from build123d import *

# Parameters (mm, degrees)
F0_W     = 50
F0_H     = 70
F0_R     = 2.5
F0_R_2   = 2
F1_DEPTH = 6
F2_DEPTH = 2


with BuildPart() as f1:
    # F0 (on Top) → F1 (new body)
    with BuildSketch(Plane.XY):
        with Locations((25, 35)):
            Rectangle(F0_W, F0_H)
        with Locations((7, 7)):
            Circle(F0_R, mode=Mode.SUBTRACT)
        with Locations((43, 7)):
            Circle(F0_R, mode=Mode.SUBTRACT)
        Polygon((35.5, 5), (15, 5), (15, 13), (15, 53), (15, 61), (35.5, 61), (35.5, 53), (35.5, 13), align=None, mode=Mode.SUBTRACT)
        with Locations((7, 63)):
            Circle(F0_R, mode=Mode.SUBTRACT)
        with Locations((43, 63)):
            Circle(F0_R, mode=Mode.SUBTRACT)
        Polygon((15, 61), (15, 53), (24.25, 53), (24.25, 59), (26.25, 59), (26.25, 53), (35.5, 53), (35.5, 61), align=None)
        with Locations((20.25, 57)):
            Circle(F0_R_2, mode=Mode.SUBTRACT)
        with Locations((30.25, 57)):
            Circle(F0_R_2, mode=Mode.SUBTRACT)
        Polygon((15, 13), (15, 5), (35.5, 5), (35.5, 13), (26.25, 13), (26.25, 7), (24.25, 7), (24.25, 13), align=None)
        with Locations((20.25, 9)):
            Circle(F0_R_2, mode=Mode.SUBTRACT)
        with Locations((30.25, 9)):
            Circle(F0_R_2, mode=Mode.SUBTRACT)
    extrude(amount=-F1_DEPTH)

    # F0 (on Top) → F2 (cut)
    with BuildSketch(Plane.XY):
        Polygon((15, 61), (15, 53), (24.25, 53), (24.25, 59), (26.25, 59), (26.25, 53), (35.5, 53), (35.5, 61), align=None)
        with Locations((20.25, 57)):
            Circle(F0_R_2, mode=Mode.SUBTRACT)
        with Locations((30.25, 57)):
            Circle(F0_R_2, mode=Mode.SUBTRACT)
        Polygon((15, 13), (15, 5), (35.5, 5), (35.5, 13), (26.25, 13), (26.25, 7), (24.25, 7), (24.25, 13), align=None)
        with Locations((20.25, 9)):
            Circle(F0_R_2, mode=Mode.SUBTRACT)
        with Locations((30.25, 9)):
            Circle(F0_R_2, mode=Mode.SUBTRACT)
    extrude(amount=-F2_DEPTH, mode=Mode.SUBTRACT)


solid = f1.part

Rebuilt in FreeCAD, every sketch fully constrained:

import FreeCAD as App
import Part
import Sketcher
Q = App.Units.Quantity

doc = App.newDocument("Part")
body = doc.addObject("PartDesign::Body", "Body")

# Sketch on XY plane
sketch1 = body.newObject("Sketcher::SketchObject", "Sketch")
sketch1.AttachmentSupport = (doc.getObject("XY_Plane"), [""])
sketch1.MapMode = "FlatFace"
sketch1.addGeometry([
    Part.LineSegment(App.Vector(0, 70, 0), App.Vector(0, 0, 0)),  # 0
    Part.LineSegment(App.Vector(0, 0, 0), App.Vector(50, 0, 0)),  # 1
    Part.LineSegment(App.Vector(50, 0, 0), App.Vector(50, 70, 0)),  # 2
    Part.LineSegment(App.Vector(50, 70, 0), App.Vector(0, 70, 0)),  # 3
    Part.Circle(App.Vector(7, 7, 0), App.Vector(0, 0, 1), 2.5),  # 4
    Part.Circle(App.Vector(20.25, 9, 0), App.Vector(0, 0, 1), 2),  # 5
    Part.Circle(App.Vector(30.25, 9, 0), App.Vector(0, 0, 1), 2),  # 6
    Part.Circle(App.Vector(43, 7, 0), App.Vector(0, 0, 1), 2.5),  # 7
    Part.LineSegment(App.Vector(35.5, 53, 0), App.Vector(35.5, 13, 0)),  # 8
    Part.LineSegment(App.Vector(35.5, 13, 0), App.Vector(26.25, 13, 0)),  # 9
    Part.LineSegment(App.Vector(26.25, 13, 0), App.Vector(26.25, 7, 0)),  # 10
    Part.LineSegment(App.Vector(26.25, 7, 0), App.Vector(24.25, 7, 0)),  # 11
    Part.LineSegment(App.Vector(24.25, 7, 0), App.Vector(24.25, 13, 0)),  # 12
    Part.LineSegment(App.Vector(24.25, 13, 0), App.Vector(15, 13, 0)),  # 13
    Part.LineSegment(App.Vector(15, 13, 0), App.Vector(15, 53, 0)),  # 14
    Part.LineSegment(App.Vector(15, 53, 0), App.Vector(24.25, 53, 0)),  # 15
    Part.LineSegment(App.Vector(24.25, 53, 0), App.Vector(24.25, 59, 0)),  # 16
    Part.LineSegment(App.Vector(24.25, 59, 0), App.Vector(26.25, 59, 0)),  # 17
    Part.LineSegment(App.Vector(26.25, 59, 0), App.Vector(26.25, 53, 0)),  # 18
    Part.LineSegment(App.Vector(26.25, 53, 0), App.Vector(35.5, 53, 0)),  # 19
    Part.Circle(App.Vector(7, 63, 0), App.Vector(0, 0, 1), 2.5),  # 20
    Part.Circle(App.Vector(20.25, 57, 0), App.Vector(0, 0, 1), 2),  # 21
    Part.Circle(App.Vector(30.25, 57, 0), App.Vector(0, 0, 1), 2),  # 22
    Part.Circle(App.Vector(43, 63, 0), App.Vector(0, 0, 1), 2.5),  # 23
], False)
sketch1.addConstraint([
    Sketcher.Constraint("Coincident", 0, 2, 1, 1),
    Sketcher.Constraint("Coincident", 1, 2, 2, 1),
    Sketcher.Constraint("Coincident", 2, 2, 3, 1),
    Sketcher.Constraint("Coincident", 3, 2, 0, 1),
    Sketcher.Constraint("Coincident", 8, 2, 9, 1),
    Sketcher.Constraint("Coincident", 9, 2, 10, 1),
    Sketcher.Constraint("Coincident", 10, 2, 11, 1),
    Sketcher.Constraint("Coincident", 11, 2, 12, 1),
    Sketcher.Constraint("Coincident", 12, 2, 13, 1),
    Sketcher.Constraint("Coincident", 13, 2, 14, 1),
    Sketcher.Constraint("Coincident", 14, 2, 15, 1),
    Sketcher.Constraint("Coincident", 15, 2, 16, 1),
    Sketcher.Constraint("Coincident", 16, 2, 17, 1),
    Sketcher.Constraint("Coincident", 17, 2, 18, 1),
    Sketcher.Constraint("Coincident", 18, 2, 19, 1),
    Sketcher.Constraint("Coincident", 19, 2, 8, 1),
    Sketcher.Constraint("Vertical", 0),
    Sketcher.Constraint("Horizontal", 1),
    Sketcher.Constraint("Vertical", 2),
    Sketcher.Constraint("Horizontal", 3),
    Sketcher.Constraint("Vertical", 8),
    Sketcher.Constraint("Horizontal", 9),
    Sketcher.Constraint("Vertical", 10),
    Sketcher.Constraint("Horizontal", 11),
    Sketcher.Constraint("Vertical", 12),
    Sketcher.Constraint("Horizontal", 13),
    Sketcher.Constraint("Vertical", 14),
    Sketcher.Constraint("Horizontal", 15),
    Sketcher.Constraint("Vertical", 16),
    Sketcher.Constraint("Horizontal", 17),
    Sketcher.Constraint("Vertical", 18),
    Sketcher.Constraint("Horizontal", 19),
    Sketcher.Constraint("Coincident", 0, 2, -1, 1),
    Sketcher.Constraint("Equal", 5, 6),
    Sketcher.Constraint("Equal", 4, 7),
    Sketcher.Constraint("Equal", 7, 20),
    Sketcher.Constraint("Equal", 6, 21),
    Sketcher.Constraint("Equal", 21, 22),
    Sketcher.Constraint("Equal", 20, 23),
    Sketcher.Constraint("Horizontal", 5, 3, 6, 3),
    Sketcher.Constraint("Horizontal", 4, 3, 7, 3),
    Sketcher.Constraint("Horizontal", 21, 3, 22, 3),
    Sketcher.Constraint("Horizontal", 20, 3, 23, 3),
    Sketcher.Constraint("Horizontal", 7, 3, 10, 2),
    Sketcher.Constraint("Horizontal", 9, 2, 12, 2),
    Sketcher.Constraint("Horizontal", 15, 2, 18, 2),
    Sketcher.Constraint("Vertical", 4, 3, 20, 3),
    Sketcher.Constraint("Vertical", 5, 3, 21, 3),
    Sketcher.Constraint("Vertical", 6, 3, 22, 3),
    Sketcher.Constraint("Vertical", 7, 3, 23, 3),
    Sketcher.Constraint("Vertical", 12, 2, 15, 2),
    Sketcher.Constraint("Vertical", 10, 2, 17, 2),
    Sketcher.Constraint("Equal", 9, 13),
    Sketcher.Constraint("Equal", 12, 16),
    Sketcher.Constraint("Diameter", 4, Q("5 mm")),
    Sketcher.Constraint("Diameter", 5, Q("4 mm")),
    Sketcher.Constraint("DistanceX", 1, 1, 1, 2, Q("50 mm")),
    Sketcher.Constraint("DistanceX", 11, 2, 11, 1, Q("2 mm")),
    Sketcher.Constraint("DistanceY", 0, 2, 0, 1, Q("70 mm")),
    Sketcher.Constraint("DistanceY", 8, 2, 8, 1, Q("40 mm")),
    Sketcher.Constraint("DistanceY", 10, 2, 10, 1, Q("6 mm")),
    Sketcher.Constraint("DistanceX", -1, 1, 4, 3, Q("7 mm")),
    Sketcher.Constraint("DistanceY", -1, 1, 4, 3, Q("7 mm")),
    Sketcher.Constraint("DistanceY", -1, 1, 5, 3, Q("9 mm")),
    Sketcher.Constraint("DistanceX", -1, 1, 7, 3, Q("43 mm")),
    Sketcher.Constraint("DistanceY", -1, 1, 20, 3, Q("63 mm")),
    Sketcher.Constraint("DistanceY", -1, 1, 21, 3, Q("57 mm")),
    Sketcher.Constraint("DistanceX", -1, 1, 13, 2, Q("15 mm")),
    Sketcher.Constraint("DistanceX", 5, 3, 6, 3, Q("10 mm")),
    Sketcher.Constraint("DistanceX", 9, 2, 6, 3, Q("4 mm")),
    Sketcher.Constraint("DistanceX", 9, 2, 9, 1, Q("9.25 mm")),
])
pad1 = body.newObject("PartDesign::Pad", "Pad")
pad1.Profile = sketch1
pad1.Length = 6
pad1.Reversed = True

# Sketch on XY plane
sketch2 = body.newObject("Sketcher::SketchObject", "Sketch001")
sketch2.AttachmentSupport = (doc.getObject("XY_Plane"), [""])
sketch2.MapMode = "FlatFace"
sketch2.addGeometry([
    Part.LineSegment(App.Vector(15, 61, 0), App.Vector(15, 53, 0)),  # 0
    Part.LineSegment(App.Vector(15, 53, 0), App.Vector(24.25, 53, 0)),  # 1
    Part.LineSegment(App.Vector(24.25, 53, 0), App.Vector(24.25, 59, 0)),  # 2
    Part.LineSegment(App.Vector(24.25, 59, 0), App.Vector(26.25, 59, 0)),  # 3
    Part.LineSegment(App.Vector(26.25, 59, 0), App.Vector(26.25, 53, 0)),  # 4
    Part.LineSegment(App.Vector(26.25, 53, 0), App.Vector(35.5, 53, 0)),  # 5
    Part.LineSegment(App.Vector(35.5, 53, 0), App.Vector(35.5, 61, 0)),  # 6
    Part.LineSegment(App.Vector(35.5, 61, 0), App.Vector(15, 61, 0)),  # 7
    Part.Circle(App.Vector(20.25, 57, 0), App.Vector(0, 0, 1), 2),  # 8
    Part.Circle(App.Vector(30.25, 57, 0), App.Vector(0, 0, 1), 2),  # 9
    Part.LineSegment(App.Vector(15, 13, 0), App.Vector(15, 5, 0)),  # 10
    Part.LineSegment(App.Vector(15, 5, 0), App.Vector(35.5, 5, 0)),  # 11
    Part.LineSegment(App.Vector(35.5, 5, 0), App.Vector(35.5, 13, 0)),  # 12
    Part.LineSegment(App.Vector(35.5, 13, 0), App.Vector(26.25, 13, 0)),  # 13
    Part.LineSegment(App.Vector(26.25, 13, 0), App.Vector(26.25, 7, 0)),  # 14
    Part.LineSegment(App.Vector(26.25, 7, 0), App.Vector(24.25, 7, 0)),  # 15
    Part.LineSegment(App.Vector(24.25, 7, 0), App.Vector(24.25, 13, 0)),  # 16
    Part.LineSegment(App.Vector(24.25, 13, 0), App.Vector(15, 13, 0)),  # 17
    Part.Circle(App.Vector(20.25, 9, 0), App.Vector(0, 0, 1), 2),  # 18
    Part.Circle(App.Vector(30.25, 9, 0), App.Vector(0, 0, 1), 2),  # 19
], False)
sketch2.addConstraint([
    Sketcher.Constraint("Coincident", 0, 2, 1, 1),
    Sketcher.Constraint("Coincident", 1, 2, 2, 1),
    Sketcher.Constraint("Coincident", 2, 2, 3, 1),
    Sketcher.Constraint("Coincident", 3, 2, 4, 1),
    Sketcher.Constraint("Coincident", 4, 2, 5, 1),
    Sketcher.Constraint("Coincident", 5, 2, 6, 1),
    Sketcher.Constraint("Coincident", 6, 2, 7, 1),
    Sketcher.Constraint("Coincident", 7, 2, 0, 1),
    Sketcher.Constraint("Coincident", 10, 2, 11, 1),
    Sketcher.Constraint("Coincident", 11, 2, 12, 1),
    Sketcher.Constraint("Coincident", 12, 2, 13, 1),
    Sketcher.Constraint("Coincident", 13, 2, 14, 1),
    Sketcher.Constraint("Coincident", 14, 2, 15, 1),
    Sketcher.Constraint("Coincident", 15, 2, 16, 1),
    Sketcher.Constraint("Coincident", 16, 2, 17, 1),
    Sketcher.Constraint("Coincident", 17, 2, 10, 1),
    Sketcher.Constraint("Vertical", 0),
    Sketcher.Constraint("Horizontal", 1),
    Sketcher.Constraint("Vertical", 2),
    Sketcher.Constraint("Horizontal", 3),
    Sketcher.Constraint("Vertical", 4),
    Sketcher.Constraint("Horizontal", 5),
    Sketcher.Constraint("Vertical", 6),
    Sketcher.Constraint("Horizontal", 7),
    Sketcher.Constraint("Vertical", 10),
    Sketcher.Constraint("Horizontal", 11),
    Sketcher.Constraint("Vertical", 12),
    Sketcher.Constraint("Horizontal", 13),
    Sketcher.Constraint("Vertical", 14),
    Sketcher.Constraint("Horizontal", 15),
    Sketcher.Constraint("Vertical", 16),
    Sketcher.Constraint("Horizontal", 17),
    Sketcher.Constraint("Equal", 8, 9),
    Sketcher.Constraint("Equal", 9, 18),
    Sketcher.Constraint("Equal", 18, 19),
    Sketcher.Constraint("Horizontal", 8, 3, 9, 3),
    Sketcher.Constraint("Horizontal", 18, 3, 19, 3),
    Sketcher.Constraint("Horizontal", 1, 2, 4, 2),
    Sketcher.Constraint("Horizontal", 13, 2, 16, 2),
    Sketcher.Constraint("Vertical", 8, 3, 18, 3),
    Sketcher.Constraint("Vertical", 9, 3, 19, 3),
    Sketcher.Constraint("Vertical", 7, 2, 10, 2),
    Sketcher.Constraint("Vertical", 6, 2, 11, 2),
    Sketcher.Constraint("Vertical", 4, 2, 13, 2),
    Sketcher.Constraint("Vertical", 2, 2, 15, 2),
    Sketcher.Constraint("Equal", 1, 5),
    Sketcher.Constraint("Equal", 6, 10),
    Sketcher.Constraint("Equal", 4, 14),
    Sketcher.Constraint("Diameter", 8, Q("4 mm")),
    Sketcher.Constraint("DistanceX", 3, 1, 3, 2, Q("2 mm")),
    Sketcher.Constraint("DistanceY", 0, 2, 0, 1, Q("8 mm")),
    Sketcher.Constraint("DistanceY", 2, 1, 2, 2, Q("6 mm")),
    Sketcher.Constraint("DistanceX", 7, 2, 7, 1, Q("20.5 mm")),
    Sketcher.Constraint("DistanceY", -1, 1, 8, 3, Q("57 mm")),
    Sketcher.Constraint("DistanceY", -1, 1, 18, 3, Q("9 mm")),
    Sketcher.Constraint("DistanceX", -1, 1, 0, 2, Q("15 mm")),
    Sketcher.Constraint("DistanceY", -1, 1, 0, 2, Q("53 mm")),
    Sketcher.Constraint("DistanceY", -1, 1, 10, 2, Q("5 mm")),
    Sketcher.Constraint("DistanceX", 8, 3, 9, 3, Q("10 mm")),
    Sketcher.Constraint("DistanceX", 8, 3, 1, 2, Q("4 mm")),
])
pocket1 = body.newObject("PartDesign::Pocket", "Pocket")
pocket1.Profile = sketch2
pocket1.Length = 2

doc.recompute()
